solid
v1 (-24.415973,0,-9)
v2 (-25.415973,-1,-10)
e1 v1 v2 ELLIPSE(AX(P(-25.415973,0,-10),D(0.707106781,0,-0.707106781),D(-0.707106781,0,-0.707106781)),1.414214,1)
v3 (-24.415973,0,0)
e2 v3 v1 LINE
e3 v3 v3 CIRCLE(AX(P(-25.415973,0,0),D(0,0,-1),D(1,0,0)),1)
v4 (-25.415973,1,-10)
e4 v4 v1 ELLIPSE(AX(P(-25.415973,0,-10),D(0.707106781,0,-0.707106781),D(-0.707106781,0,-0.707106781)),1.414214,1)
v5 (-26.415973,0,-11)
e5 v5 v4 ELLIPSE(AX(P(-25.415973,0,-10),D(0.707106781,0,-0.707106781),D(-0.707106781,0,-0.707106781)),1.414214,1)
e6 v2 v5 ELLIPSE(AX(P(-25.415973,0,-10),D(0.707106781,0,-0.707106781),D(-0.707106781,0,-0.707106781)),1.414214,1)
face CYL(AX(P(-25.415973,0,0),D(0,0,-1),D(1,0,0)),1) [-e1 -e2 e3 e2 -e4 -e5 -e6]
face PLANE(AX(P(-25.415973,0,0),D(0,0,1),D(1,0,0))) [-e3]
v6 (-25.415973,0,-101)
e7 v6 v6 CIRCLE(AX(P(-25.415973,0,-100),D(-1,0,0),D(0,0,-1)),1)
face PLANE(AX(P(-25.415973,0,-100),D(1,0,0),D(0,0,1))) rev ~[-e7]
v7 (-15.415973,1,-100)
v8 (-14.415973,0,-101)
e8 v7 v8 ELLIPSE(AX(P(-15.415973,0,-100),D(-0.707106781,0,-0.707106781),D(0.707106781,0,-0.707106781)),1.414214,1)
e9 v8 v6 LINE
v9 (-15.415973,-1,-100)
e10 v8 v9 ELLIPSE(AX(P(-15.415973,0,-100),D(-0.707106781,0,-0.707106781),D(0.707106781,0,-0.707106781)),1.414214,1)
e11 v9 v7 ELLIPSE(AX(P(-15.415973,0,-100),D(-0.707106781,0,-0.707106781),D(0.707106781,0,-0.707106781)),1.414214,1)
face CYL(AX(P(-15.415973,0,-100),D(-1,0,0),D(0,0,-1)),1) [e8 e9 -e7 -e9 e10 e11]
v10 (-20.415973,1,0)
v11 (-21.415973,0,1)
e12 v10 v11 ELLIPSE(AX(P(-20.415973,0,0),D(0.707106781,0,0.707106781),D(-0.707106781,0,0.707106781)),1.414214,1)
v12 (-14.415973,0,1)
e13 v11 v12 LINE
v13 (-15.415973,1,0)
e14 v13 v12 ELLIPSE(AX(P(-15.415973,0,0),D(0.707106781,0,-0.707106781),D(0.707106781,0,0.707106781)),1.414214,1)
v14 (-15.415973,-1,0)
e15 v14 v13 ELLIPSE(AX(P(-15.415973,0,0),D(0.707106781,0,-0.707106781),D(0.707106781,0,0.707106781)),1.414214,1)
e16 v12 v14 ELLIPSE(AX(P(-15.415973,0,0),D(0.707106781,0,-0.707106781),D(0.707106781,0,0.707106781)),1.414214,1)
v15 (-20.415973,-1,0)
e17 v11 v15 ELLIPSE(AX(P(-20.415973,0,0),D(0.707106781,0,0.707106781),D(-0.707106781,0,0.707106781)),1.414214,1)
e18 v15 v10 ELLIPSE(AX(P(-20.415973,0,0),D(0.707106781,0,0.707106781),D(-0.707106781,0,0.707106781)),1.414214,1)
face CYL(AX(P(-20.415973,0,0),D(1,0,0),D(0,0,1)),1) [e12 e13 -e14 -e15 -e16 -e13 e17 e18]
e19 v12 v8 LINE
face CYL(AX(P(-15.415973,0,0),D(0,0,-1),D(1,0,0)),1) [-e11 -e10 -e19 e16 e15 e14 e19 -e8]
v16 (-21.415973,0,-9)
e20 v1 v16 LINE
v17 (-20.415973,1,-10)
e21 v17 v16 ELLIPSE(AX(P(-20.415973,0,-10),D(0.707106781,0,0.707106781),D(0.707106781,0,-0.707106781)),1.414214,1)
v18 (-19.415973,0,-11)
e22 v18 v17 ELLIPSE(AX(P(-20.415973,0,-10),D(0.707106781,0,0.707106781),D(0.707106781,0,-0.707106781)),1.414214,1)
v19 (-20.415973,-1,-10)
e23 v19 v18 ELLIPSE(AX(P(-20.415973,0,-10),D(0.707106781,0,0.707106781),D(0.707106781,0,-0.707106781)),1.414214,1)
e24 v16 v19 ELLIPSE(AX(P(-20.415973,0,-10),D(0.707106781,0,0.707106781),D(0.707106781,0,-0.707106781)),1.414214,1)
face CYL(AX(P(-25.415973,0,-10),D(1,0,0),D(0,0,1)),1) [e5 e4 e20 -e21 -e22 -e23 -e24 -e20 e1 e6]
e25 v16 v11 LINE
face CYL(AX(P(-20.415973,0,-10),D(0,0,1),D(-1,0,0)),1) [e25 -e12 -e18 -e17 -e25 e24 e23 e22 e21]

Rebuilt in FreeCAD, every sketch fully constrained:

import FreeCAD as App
import Part
import Sketcher
Q = App.Units.Quantity

doc = App.newDocument("Part")
body = doc.addObject("PartDesign::Body", "Body")

sketch1 = body.newObject("Sketcher::SketchObject", "Sketch")
sketch1.AttachmentSupport = (doc.getObject("XY_Plane"), [""])
sketch1.MapMode = "FlatFace"
sketch1.addGeometry(Part.Circle(App.Vector(-25.4, 0, 0), App.Vector(0, 0, 1), 1), False)
sketch1.addConstraint([
    Sketcher.Constraint("PointOnObject", 0, 3, -1),
    Sketcher.Constraint("Diameter", 0, Q("2 mm")),
    Sketcher.Constraint("DistanceX", 0, 3, -1, 1, Q("25.415973 mm")),
])

sketch2 = body.newObject("Sketcher::SketchObject", "Sketch001")
sketch2.AttachmentSupport = (doc.getObject("XZ_Plane"), [""])
sketch2.MapMode = "FlatFace"
sketch2.addGeometry([
    Part.LineSegment(App.Vector(-25, 0, 0), App.Vector(-25, -10, 0)),
    Part.LineSegment(App.Vector(-25, -10, 0), App.Vector(-20, -10, 0)),
    Part.LineSegment(App.Vector(-20, -10, 0), App.Vector(-20, 0, 0)),
    Part.LineSegment(App.Vector(-20, 0, 0), App.Vector(-15, 0, 0)),
    Part.LineSegment(App.Vector(-15, 0, 0), App.Vector(-15, -100, 0)),
    Part.LineSegment(App.Vector(-15, -100, 0), App.Vector(-25, -100, 0)),
], False)
sketch2.addConstraint([
    Sketcher.Constraint("Coincident", 0, 2, 1, 1),
    Sketcher.Constraint("Coincident", 1, 2, 2, 1),
    Sketcher.Constraint("Coincident", 2, 2, 3, 1),
    Sketcher.Constraint("Coincident", 3, 2, 4, 1),
    Sketcher.Constraint("Coincident", 4, 2, 5, 1),
    Sketcher.Constraint("Vertical", 0),
    Sketcher.Constraint("Horizontal", 1),
    Sketcher.Constraint("Vertical", 2),
    Sketcher.Constraint("Horizontal", 3),
    Sketcher.Constraint("Vertical", 4),
    Sketcher.Constraint("Horizontal", 5),
    Sketcher.Constraint("PointOnObject", 0, 1, -1),
    Sketcher.Constraint("PointOnObject", 2, 2, -1),
    Sketcher.Constraint("Vertical", 0, 2, 5, 2),
    Sketcher.Constraint("Equal", 1, 3),
    Sketcher.Constraint("Equal", 5, 0),
    Sketcher.Constraint("DistanceX", 1, 1, 1, 2, Q("5 mm")),
    Sketcher.Constraint("DistanceY", 4, 2, 4, 1, Q("100 mm")),
    Sketcher.Constraint("DistanceX", 0, 1, -1, 1, Q("25.415973 mm")),
])
doc.recompute()

additivepipe = body.newObject("PartDesign::AdditivePipe", "AdditivePipe")
additivepipe.Profile = sketch1
additivepipe.Spine = (sketch2, ["Edge1", "Edge2", "Edge3", "Edge4", "Edge5", "Edge6"])
additivepipe.Transition = "Right corner"

doc.recompute()
